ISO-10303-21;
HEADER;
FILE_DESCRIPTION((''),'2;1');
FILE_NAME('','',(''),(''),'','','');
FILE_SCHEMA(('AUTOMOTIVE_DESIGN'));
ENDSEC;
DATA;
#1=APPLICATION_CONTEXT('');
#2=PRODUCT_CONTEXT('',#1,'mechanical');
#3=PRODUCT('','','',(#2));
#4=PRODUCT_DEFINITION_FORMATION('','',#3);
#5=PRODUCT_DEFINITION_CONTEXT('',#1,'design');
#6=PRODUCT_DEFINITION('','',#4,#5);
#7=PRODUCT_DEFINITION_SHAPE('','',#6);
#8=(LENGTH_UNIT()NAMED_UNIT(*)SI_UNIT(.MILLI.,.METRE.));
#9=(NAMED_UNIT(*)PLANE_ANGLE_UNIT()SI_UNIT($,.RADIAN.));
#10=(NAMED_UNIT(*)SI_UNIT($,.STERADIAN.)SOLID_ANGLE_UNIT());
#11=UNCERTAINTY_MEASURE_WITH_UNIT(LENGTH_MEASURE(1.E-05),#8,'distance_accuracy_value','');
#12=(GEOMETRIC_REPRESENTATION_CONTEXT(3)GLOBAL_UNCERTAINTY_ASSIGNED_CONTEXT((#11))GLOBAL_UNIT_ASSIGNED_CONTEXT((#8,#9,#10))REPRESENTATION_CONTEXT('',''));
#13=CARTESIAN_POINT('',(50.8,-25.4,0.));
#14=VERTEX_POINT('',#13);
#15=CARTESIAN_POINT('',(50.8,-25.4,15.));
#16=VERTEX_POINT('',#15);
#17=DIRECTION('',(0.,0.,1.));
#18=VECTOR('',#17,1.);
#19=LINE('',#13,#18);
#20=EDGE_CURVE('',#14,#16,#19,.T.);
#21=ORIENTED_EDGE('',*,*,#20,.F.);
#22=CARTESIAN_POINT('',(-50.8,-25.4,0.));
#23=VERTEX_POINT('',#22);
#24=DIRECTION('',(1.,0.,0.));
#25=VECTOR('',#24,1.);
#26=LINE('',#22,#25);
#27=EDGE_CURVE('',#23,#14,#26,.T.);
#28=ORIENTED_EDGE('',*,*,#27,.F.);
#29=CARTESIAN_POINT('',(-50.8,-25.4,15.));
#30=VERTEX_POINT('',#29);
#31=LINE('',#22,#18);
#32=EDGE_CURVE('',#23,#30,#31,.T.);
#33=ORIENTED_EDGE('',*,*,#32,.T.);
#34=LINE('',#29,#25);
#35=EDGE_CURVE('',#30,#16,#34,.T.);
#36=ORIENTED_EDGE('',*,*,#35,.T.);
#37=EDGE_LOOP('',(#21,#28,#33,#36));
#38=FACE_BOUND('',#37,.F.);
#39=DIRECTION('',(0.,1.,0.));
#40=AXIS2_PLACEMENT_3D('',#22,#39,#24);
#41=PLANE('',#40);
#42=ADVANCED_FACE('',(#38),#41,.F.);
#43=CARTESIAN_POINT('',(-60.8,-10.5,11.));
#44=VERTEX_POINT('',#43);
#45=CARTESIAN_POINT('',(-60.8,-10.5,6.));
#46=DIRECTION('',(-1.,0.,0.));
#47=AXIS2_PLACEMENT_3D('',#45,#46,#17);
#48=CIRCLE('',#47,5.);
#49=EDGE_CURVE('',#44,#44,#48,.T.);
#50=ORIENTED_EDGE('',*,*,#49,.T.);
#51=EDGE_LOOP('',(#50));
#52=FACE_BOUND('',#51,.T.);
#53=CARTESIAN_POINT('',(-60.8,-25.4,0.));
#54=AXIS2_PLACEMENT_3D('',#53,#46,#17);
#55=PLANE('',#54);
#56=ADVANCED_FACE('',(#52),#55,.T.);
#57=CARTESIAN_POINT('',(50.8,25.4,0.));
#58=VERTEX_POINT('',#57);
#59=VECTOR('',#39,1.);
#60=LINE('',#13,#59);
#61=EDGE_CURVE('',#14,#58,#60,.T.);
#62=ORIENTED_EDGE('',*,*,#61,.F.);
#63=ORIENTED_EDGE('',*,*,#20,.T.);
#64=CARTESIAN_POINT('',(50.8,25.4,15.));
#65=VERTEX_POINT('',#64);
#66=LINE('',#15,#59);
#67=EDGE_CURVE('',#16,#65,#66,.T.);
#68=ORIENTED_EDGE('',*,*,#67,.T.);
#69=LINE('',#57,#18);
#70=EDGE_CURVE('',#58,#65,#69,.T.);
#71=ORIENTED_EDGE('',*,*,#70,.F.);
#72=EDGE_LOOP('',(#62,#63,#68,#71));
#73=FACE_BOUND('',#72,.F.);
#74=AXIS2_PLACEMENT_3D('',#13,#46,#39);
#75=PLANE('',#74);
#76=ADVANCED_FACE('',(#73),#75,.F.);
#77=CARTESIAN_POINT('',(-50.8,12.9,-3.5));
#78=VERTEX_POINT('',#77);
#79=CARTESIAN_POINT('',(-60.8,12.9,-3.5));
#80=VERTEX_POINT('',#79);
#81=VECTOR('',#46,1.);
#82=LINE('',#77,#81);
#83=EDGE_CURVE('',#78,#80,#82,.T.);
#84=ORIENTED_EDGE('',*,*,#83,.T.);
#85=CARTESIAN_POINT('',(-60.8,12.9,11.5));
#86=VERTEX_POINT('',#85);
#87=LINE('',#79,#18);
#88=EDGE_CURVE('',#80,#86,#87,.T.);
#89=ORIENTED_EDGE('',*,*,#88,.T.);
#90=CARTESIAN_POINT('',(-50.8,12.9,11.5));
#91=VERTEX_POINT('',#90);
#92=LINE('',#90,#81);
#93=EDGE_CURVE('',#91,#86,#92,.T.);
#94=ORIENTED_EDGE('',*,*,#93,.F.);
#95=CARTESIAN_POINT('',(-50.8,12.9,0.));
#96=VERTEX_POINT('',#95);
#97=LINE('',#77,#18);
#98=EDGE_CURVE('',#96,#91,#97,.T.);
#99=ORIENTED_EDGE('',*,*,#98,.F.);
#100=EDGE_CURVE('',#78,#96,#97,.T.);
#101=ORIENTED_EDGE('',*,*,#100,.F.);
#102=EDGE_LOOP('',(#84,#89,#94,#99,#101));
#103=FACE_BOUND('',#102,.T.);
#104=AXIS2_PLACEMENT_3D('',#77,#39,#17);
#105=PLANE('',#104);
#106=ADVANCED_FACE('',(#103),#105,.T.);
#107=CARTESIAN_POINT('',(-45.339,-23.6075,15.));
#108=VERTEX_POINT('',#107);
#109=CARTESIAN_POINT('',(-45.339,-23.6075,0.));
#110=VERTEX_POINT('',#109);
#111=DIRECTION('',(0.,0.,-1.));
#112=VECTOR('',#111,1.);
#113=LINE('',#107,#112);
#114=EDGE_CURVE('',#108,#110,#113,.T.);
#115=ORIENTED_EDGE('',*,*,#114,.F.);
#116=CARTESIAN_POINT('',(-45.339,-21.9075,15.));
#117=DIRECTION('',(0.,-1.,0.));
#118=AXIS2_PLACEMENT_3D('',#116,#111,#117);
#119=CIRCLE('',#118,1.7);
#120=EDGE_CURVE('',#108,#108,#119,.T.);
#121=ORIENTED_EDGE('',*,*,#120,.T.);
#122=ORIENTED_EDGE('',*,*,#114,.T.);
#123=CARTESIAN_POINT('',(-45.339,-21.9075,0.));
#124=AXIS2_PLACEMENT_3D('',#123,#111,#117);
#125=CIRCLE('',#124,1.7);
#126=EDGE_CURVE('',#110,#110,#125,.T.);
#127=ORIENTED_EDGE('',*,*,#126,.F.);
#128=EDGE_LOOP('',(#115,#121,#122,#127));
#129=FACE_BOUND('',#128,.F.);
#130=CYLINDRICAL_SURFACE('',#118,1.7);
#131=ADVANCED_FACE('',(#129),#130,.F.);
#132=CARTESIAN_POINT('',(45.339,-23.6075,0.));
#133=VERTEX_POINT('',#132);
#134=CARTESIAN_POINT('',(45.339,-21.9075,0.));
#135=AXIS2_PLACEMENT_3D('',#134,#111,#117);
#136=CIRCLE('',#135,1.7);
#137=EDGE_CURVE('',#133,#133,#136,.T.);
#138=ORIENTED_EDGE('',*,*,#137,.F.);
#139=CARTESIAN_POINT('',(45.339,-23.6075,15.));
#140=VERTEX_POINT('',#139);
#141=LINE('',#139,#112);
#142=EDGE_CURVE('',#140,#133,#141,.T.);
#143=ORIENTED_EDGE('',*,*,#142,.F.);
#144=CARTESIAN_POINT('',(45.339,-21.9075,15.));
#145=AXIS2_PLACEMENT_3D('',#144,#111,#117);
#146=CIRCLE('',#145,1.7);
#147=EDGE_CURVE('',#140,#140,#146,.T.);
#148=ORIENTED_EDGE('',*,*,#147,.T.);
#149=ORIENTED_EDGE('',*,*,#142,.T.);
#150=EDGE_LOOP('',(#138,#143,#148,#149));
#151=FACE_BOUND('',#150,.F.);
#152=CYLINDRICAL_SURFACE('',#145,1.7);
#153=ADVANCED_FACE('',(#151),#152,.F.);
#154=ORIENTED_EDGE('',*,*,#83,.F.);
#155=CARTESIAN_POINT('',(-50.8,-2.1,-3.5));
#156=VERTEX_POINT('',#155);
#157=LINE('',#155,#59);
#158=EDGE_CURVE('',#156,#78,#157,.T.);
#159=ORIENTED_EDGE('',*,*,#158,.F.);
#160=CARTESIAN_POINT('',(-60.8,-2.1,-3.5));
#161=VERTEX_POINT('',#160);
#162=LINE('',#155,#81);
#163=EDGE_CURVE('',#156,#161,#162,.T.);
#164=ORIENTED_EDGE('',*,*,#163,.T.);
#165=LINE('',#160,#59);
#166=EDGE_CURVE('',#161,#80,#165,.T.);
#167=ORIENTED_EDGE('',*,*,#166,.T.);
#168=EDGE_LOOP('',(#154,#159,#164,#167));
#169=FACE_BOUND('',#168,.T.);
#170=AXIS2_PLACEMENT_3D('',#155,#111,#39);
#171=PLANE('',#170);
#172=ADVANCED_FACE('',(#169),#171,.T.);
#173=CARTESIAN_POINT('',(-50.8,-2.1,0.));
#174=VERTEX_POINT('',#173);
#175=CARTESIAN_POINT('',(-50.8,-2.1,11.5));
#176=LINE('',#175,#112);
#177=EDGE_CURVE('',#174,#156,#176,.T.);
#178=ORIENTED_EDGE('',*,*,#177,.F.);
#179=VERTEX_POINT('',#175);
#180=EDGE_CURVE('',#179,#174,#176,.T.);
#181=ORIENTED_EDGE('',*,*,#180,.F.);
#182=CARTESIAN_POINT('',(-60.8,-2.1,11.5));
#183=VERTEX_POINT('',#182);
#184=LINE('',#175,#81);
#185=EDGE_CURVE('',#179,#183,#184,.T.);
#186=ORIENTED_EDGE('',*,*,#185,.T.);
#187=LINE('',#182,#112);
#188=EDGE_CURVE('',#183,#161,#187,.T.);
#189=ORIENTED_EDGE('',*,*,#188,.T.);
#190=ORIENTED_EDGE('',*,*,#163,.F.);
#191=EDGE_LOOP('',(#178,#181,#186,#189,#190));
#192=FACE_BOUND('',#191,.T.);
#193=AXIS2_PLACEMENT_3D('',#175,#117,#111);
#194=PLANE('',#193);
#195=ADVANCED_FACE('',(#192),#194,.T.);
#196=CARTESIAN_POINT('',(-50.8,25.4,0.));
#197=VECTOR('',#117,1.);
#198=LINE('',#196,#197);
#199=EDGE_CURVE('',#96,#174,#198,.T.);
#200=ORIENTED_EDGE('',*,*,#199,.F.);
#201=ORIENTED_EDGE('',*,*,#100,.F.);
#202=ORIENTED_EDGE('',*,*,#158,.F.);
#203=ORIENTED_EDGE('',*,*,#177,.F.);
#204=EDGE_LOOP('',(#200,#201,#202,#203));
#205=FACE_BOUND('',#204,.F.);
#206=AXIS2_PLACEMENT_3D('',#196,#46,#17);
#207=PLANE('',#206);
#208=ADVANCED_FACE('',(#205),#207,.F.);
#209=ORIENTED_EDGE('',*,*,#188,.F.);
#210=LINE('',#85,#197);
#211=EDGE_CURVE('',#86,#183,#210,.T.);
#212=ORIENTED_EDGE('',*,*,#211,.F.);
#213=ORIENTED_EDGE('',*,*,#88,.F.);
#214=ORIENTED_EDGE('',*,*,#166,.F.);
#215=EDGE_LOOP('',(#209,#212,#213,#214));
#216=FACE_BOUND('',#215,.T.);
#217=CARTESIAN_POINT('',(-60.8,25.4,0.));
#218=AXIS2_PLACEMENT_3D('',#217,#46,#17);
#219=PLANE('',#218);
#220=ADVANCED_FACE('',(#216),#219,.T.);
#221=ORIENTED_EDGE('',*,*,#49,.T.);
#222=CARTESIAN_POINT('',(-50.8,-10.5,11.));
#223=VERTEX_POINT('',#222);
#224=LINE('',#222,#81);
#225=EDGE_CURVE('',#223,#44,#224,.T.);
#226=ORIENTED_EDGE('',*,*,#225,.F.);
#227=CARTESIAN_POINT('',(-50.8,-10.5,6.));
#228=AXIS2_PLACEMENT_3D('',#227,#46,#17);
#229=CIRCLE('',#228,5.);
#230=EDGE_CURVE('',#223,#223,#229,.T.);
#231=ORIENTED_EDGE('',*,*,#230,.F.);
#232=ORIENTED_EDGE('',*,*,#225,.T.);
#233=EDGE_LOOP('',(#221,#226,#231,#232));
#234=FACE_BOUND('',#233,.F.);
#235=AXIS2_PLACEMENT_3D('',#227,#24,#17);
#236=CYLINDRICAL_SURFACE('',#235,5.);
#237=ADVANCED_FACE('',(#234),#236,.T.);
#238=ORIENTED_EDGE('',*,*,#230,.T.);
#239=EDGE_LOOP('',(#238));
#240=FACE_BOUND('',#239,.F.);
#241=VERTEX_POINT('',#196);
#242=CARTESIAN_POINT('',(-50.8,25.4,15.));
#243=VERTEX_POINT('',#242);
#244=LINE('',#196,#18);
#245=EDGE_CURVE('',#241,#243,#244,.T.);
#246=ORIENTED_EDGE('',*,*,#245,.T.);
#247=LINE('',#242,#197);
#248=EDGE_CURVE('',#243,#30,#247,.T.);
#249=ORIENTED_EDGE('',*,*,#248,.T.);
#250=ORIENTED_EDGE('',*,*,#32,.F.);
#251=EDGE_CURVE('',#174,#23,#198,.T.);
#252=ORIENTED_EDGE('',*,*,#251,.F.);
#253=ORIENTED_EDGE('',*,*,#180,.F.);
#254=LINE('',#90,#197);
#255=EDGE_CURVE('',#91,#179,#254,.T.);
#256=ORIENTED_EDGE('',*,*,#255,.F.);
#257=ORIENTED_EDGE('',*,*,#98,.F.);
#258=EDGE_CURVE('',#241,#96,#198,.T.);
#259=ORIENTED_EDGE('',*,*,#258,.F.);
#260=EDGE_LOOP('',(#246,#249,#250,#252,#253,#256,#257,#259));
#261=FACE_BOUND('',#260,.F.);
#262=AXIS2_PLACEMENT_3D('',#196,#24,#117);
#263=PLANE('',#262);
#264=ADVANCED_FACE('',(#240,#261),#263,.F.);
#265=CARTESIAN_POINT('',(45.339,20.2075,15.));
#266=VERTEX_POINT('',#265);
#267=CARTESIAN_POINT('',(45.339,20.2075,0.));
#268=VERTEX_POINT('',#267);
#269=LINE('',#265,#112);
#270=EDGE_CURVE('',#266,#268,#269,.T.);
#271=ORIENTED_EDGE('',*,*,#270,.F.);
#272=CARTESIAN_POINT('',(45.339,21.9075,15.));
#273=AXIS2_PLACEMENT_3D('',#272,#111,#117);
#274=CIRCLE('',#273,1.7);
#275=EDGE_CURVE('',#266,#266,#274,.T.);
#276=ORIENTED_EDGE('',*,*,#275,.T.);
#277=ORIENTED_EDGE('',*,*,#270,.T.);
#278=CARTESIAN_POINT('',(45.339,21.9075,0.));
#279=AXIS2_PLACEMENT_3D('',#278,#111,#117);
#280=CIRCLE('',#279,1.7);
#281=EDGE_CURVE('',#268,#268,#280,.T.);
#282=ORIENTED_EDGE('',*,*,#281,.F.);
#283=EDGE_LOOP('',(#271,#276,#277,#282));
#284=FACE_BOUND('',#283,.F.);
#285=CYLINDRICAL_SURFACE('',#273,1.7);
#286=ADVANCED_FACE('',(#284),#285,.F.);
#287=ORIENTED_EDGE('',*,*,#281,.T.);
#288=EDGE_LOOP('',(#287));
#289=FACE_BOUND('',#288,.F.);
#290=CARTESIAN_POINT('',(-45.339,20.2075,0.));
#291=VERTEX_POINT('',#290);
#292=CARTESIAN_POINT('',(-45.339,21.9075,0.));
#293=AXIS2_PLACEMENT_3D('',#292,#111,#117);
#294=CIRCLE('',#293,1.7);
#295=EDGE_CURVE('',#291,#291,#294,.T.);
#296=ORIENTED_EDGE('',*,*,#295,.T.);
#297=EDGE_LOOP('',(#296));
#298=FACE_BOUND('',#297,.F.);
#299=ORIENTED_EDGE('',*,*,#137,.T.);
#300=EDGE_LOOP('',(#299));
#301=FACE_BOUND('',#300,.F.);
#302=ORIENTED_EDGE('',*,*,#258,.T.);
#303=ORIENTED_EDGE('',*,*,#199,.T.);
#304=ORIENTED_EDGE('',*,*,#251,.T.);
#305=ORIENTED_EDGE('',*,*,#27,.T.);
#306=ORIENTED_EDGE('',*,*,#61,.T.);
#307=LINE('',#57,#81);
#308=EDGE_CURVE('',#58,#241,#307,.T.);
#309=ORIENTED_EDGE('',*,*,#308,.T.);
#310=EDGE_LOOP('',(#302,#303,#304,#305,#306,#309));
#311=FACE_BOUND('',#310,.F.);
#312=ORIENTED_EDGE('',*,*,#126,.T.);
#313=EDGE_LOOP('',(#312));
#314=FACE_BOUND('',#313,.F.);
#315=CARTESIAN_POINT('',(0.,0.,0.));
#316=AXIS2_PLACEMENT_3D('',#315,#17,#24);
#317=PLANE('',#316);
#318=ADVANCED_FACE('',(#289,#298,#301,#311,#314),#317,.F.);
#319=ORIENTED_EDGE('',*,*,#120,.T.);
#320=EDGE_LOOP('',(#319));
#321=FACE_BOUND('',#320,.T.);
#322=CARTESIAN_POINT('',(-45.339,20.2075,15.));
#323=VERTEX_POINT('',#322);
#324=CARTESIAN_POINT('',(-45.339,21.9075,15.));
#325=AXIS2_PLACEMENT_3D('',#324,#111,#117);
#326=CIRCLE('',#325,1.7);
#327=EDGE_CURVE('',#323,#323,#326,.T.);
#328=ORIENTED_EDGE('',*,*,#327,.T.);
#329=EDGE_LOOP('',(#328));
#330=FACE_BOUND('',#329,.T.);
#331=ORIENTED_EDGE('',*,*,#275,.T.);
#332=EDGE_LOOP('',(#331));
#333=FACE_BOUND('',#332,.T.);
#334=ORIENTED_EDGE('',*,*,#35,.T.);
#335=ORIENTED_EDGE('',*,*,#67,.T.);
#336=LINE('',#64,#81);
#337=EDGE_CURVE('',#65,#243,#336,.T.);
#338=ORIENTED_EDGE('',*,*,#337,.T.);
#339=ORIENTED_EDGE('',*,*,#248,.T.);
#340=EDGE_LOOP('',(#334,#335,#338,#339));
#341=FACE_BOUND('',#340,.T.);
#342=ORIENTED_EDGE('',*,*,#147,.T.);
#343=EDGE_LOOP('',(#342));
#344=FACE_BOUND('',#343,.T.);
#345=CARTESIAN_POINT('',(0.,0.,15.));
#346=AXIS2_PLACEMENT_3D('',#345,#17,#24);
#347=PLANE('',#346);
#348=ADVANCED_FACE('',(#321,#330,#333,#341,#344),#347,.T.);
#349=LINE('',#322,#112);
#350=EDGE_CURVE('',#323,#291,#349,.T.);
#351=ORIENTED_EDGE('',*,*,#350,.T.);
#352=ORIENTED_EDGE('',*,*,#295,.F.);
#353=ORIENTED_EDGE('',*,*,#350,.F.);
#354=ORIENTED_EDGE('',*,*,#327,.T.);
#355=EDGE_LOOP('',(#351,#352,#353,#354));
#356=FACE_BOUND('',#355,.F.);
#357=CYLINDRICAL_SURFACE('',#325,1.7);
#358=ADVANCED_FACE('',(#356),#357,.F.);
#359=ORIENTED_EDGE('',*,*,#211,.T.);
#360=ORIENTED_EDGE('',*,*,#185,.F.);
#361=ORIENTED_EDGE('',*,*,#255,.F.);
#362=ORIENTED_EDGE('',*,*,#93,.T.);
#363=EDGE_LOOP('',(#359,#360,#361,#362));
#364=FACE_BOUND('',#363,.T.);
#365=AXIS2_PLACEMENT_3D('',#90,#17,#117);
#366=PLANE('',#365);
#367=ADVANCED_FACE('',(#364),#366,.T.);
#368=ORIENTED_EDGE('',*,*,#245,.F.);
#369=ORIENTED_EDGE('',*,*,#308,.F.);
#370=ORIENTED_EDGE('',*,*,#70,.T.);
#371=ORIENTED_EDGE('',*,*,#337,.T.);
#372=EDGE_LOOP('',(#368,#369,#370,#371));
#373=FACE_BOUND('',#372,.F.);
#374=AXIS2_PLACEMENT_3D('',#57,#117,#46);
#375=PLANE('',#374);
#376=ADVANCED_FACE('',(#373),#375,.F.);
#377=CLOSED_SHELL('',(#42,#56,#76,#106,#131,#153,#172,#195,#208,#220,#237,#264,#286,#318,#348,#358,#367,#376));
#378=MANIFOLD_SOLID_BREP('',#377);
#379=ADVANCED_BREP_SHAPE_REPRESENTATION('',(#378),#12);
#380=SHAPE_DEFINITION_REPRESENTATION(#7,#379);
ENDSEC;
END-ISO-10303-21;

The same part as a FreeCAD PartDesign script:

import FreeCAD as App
import Part
import Sketcher

V = App.Vector

doc = App.newDocument("Part")
params = doc.addObject("Spreadsheet::Sheet", "Params")
for row, (alias, value) in enumerate([
    ("sketch1_width", "101.6 mm"),
    ("sketch1_height", "50.8 mm"),
    ("pad1_length", "15 mm"),
    ("sketch2_diameter", "3.4 mm"),
    ("hole_diameter", "3.4 mm"),
    ("sketch3_diameter", "10 mm"),
    ("pad2_length", "10 mm"),
    ("sketch4_width", "15 mm"),
    ("pad3_length", "10 mm"),
], start=1):
    params.set(f"A{row}", alias)
    params.set(f"B{row}", "=" + value)
    params.setAlias(f"B{row}", alias)

body = doc.addObject("PartDesign::Body", "Body")

# Sketch on XY plane
sketch1 = body.newObject("Sketcher::SketchObject", "Sketch")
sketch1.AttachmentSupport = (doc.getObject("XY_Plane"), [""])
sketch1.MapMode = "FlatFace"
sketch1.addGeometry(Part.LineSegment(V(-51, 25, 0), V(-51, -25, 0)), False)
sketch1.addGeometry(Part.LineSegment(V(-51, -25, 0), V(51, -25, 0)), False)
sketch1.addGeometry(Part.LineSegment(V(51, -25, 0), V(51, 25, 0)), False)
sketch1.addGeometry(Part.LineSegment(V(51, 25, 0), V(-51, 25, 0)), False)
sketch1.addConstraint(Sketcher.Constraint("Coincident", 0, 2, 1, 1))
sketch1.addConstraint(Sketcher.Constraint("Coincident", 1, 2, 2, 1))
sketch1.addConstraint(Sketcher.Constraint("Coincident", 2, 2, 3, 1))
sketch1.addConstraint(Sketcher.Constraint("Coincident", 3, 2, 0, 1))
sketch1.addConstraint(Sketcher.Constraint("Vertical", 0))
sketch1.addConstraint(Sketcher.Constraint("Horizontal", 1))
sketch1.addConstraint(Sketcher.Constraint("Vertical", 2))
sketch1.addConstraint(Sketcher.Constraint("Horizontal", 3))
sketch1.addConstraint(Sketcher.Constraint("Symmetric", 0, 2, 2, 2, -1, 1))
sketch1.addConstraint(Sketcher.Constraint("DistanceX", 1, 1, 1, 2, 101.6))
sketch1.addConstraint(Sketcher.Constraint("DistanceY", 0, 2, 0, 1, 50.8))
sketch1.setExpression("Constraints[9]", "Params.sketch1_width")
sketch1.setExpression("Constraints[10]", "Params.sketch1_height")
pad1 = body.newObject("PartDesign::Pad", "Pad")
pad1.Profile = sketch1
pad1.setExpression("Length", "Params.pad1_length")

# Sketch on XY plane
sketch2 = body.newObject("Sketcher::SketchObject", "Sketch001")
sketch2.AttachmentSupport = (doc.getObject("XY_Plane"), [""])
sketch2.MapMode = "FlatFace"
sketch2.AttachmentOffset = App.Placement(V(0, 0, 15), App.Rotation())
sketch2.addGeometry(Part.Circle(V(-45.3, 21.9, 0), V(0, 0, 1), 1.7), False)
sketch2.addGeometry(Part.Circle(V(45.3, 21.9, 0), V(0, 0, 1), 1.7), False)
sketch2.addGeometry(Part.Circle(V(45.3, -21.9, 0), V(0, 0, 1), 1.7), False)
sketch2.addGeometry(Part.Circle(V(-45.3, -21.9, 0), V(0, 0, 1), 1.7), False)
sketch2.addConstraint(Sketcher.Constraint("Equal", 0, 1))
sketch2.addConstraint(Sketcher.Constraint("Equal", 1, 2))
sketch2.addConstraint(Sketcher.Constraint("Equal", 2, 3))
sketch2.addConstraint(Sketcher.Constraint("Symmetric", 0, 3, 2, 3, -1, 1))
sketch2.addConstraint(Sketcher.Constraint("Symmetric", 1, 3, 3, 3, -1, 1))
sketch2.addConstraint(Sketcher.Constraint("Symmetric", 0, 3, 1, 3, -2))
sketch2.addConstraint(Sketcher.Constraint("Diameter", 0, 3.4))
sketch2.addConstraint(Sketcher.Constraint("DistanceX", 0, 3, -1, 1, 45.339))
sketch2.addConstraint(Sketcher.Constraint("DistanceY", 2, 3, 1, 3, 43.815))
sketch2.setExpression("Constraints[6]", "Params.sketch2_diameter")
doc.recompute()
hole = body.newObject("PartDesign::Hole", "Hole")
hole.Profile = sketch2
hole.ThreadType = "None"
hole.setExpression("Diameter", "Params.hole_diameter")
hole.DepthType = "ThroughAll"

# Sketch on YZ plane
sketch3 = body.newObject("Sketcher::SketchObject", "Sketch002")
sketch3.AttachmentSupport = (doc.getObject("YZ_Plane"), [""])
sketch3.MapMode = "FlatFace"
sketch3.AttachmentOffset = App.Placement(V(0, 0, -50.8), App.Rotation())
sketch3.addGeometry(Part.Circle(V(-10, 6, 0), V(0, 0, 1), 5), False)
sketch3.addConstraint(Sketcher.Constraint("Diameter", 0, 10.0))
sketch3.addConstraint(Sketcher.Constraint("DistanceY", -1, 1, 0, 3, 6.0))
sketch3.addConstraint(Sketcher.Constraint("DistanceX", 0, 3, -1, 1, 10.5))
sketch3.setExpression("Constraints[0]", "Params.sketch3_diameter")
pad2 = body.newObject("PartDesign::Pad", "Pad001")
pad2.Profile = sketch3
pad2.setExpression("Length", "Params.pad2_length")
pad2.Reversed = True

# Sketch on YZ plane
sketch4 = body.newObject("Sketcher::SketchObject", "Sketch003")
sketch4.AttachmentSupport = (doc.getObject("YZ_Plane"), [""])
sketch4.MapMode = "FlatFace"
sketch4.AttachmentOffset = App.Placement(V(0, 0, -50.8), App.Rotation())
sketch4.addGeometry(Part.LineSegment(V(13, 12, 0), V(13, -4, 0)), False)
sketch4.addGeometry(Part.LineSegment(V(13, -4, 0), V(-2, -4, 0)), False)
sketch4.addGeometry(Part.LineSegment(V(-2, -4, 0), V(-2, 12, 0)), False)
sketch4.addGeometry(Part.LineSegment(V(-2, 12, 0), V(13, 12, 0)), False)
sketch4.addConstraint(Sketcher.Constraint("Coincident", 0, 2, 1, 1))
sketch4.addConstraint(Sketcher.Constraint("Coincident", 1, 2, 2, 1))
sketch4.addConstraint(Sketcher.Constraint("Coincident", 2, 2, 3, 1))
sketch4.addConstraint(Sketcher.Constraint("Coincident", 3, 2, 0, 1))
sketch4.addConstraint(Sketcher.Constraint("Vertical", 0))
sketch4.addConstraint(Sketcher.Constraint("Horizontal", 1))
sketch4.addConstraint(Sketcher.Constraint("Vertical", 2))
sketch4.addConstraint(Sketcher.Constraint("Horizontal", 3))
sketch4.addConstraint(Sketcher.Constraint("Equal", 3, 0))
sketch4.addConstraint(Sketcher.Constraint("DistanceX", 1, 2, 1, 1, 15.0))
sketch4.addConstraint(Sketcher.Constraint("DistanceX", -1, 1, 0, 2, 12.9))
sketch4.addConstraint(Sketcher.Constraint("DistanceY", 0, 2, -1, 1, 3.5))
sketch4.setExpression("Constraints[9]", "Params.sketch4_width")
pad3 = body.newObject("PartDesign::Pad", "Pad002")
pad3.Profile = sketch4
pad3.setExpression("Length", "Params.pad3_length")
pad3.Reversed = True

doc.recompute()
